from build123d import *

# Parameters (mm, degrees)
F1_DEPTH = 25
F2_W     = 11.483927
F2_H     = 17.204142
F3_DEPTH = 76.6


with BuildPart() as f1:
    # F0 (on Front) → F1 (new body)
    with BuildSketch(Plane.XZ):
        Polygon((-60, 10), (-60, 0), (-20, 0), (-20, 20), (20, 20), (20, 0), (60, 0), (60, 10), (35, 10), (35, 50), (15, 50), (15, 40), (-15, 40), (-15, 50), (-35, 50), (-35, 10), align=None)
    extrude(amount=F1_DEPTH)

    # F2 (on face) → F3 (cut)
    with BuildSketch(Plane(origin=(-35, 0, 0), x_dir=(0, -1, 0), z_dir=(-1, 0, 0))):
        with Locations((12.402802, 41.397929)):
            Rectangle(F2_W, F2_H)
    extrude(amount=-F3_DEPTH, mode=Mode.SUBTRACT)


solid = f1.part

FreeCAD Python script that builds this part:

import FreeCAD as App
import Part
import Sketcher

V = App.Vector


def add_polygon(sketch, points):
    """Adds a closed chain of lines whose ends are joined by coincident constraints."""
    first, n = sketch.GeometryCount, len(points)
    for a, b in zip(points, points[1:] + points[:1]):
        sketch.addGeometry(Part.LineSegment(App.Vector(*a, 0), App.Vector(*b, 0)), False)
    for i in range(n):
        sketch.addConstraint(Sketcher.Constraint("Coincident", first + i, 2, first + (i + 1) % n, 1))

doc = App.newDocument("Part")
params = doc.addObject("Spreadsheet::Sheet", "Params")
for row, (alias, value) in enumerate([
    ("sketch1_width", "40 mm"),
    ("sketch1_width2", "25 mm"),
    ("sketch1_width3", "20 mm"),
    ("sketch1_height", "10 mm"),
    ("pad1_length", "25 mm"),
    ("pocket1_length", "76.6 mm"),
], start=1):
    params.set(f"A{row}", alias)
    params.set(f"B{row}", "=" + value)
    params.setAlias(f"B{row}", alias)

body = doc.addObject("PartDesign::Body", "Body")

sketch1 = body.newObject("Sketcher::SketchObject", "Sketch")
sketch1.AttachmentSupport = (doc.getObject("XZ_Plane"), [""])
sketch1.MapMode = "FlatFace"
add_polygon(sketch1, [(-60, 10), (-60, 0), (-20, 0), (-20, 20), (20, 20), (20, 0), (60, 0), (60, 10), (35, 10), (35, 50), (15, 50), (15, 40), (-15, 40), (-15, 50), (-35, 50), (-35, 10)])
sketch1.addConstraint(Sketcher.Constraint("Vertical", 0))
sketch1.addConstraint(Sketcher.Constraint("Horizontal", 1))
sketch1.addConstraint(Sketcher.Constraint("Vertical", 2))
sketch1.addConstraint(Sketcher.Constraint("Horizontal", 3))
sketch1.addConstraint(Sketcher.Constraint("Vertical", 4))
sketch1.addConstraint(Sketcher.Constraint("Horizontal", 5))
sketch1.addConstraint(Sketcher.Constraint("Vertical", 6))
sketch1.addConstraint(Sketcher.Constraint("Horizontal", 7))
sketch1.addConstraint(Sketcher.Constraint("Vertical", 8))
sketch1.addConstraint(Sketcher.Constraint("Horizontal", 9))
sketch1.addConstraint(Sketcher.Constraint("Vertical", 10))
sketch1.addConstraint(Sketcher.Constraint("Horizontal", 11))
sketch1.addConstraint(Sketcher.Constraint("Vertical", 12))
sketch1.addConstraint(Sketcher.Constraint("Horizontal", 13))
sketch1.addConstraint(Sketcher.Constraint("Vertical", 14))
sketch1.addConstraint(Sketcher.Constraint("Horizontal", 15))
sketch1.addConstraint(Sketcher.Constraint("Symmetric", 1, 2, 4, 2, -1, 1))
sketch1.addConstraint(Sketcher.Constraint("Symmetric", 0, 2, 5, 2, -2))
sketch1.addConstraint(Sketcher.Constraint("Symmetric", 9, 2, 12, 2, -2))
sketch1.addConstraint(Sketcher.Constraint("Symmetric", 7, 2, 14, 2, -2))
sketch1.addConstraint(Sketcher.Constraint("Equal", 1, 3))
sketch1.addConstraint(Sketcher.Constraint("Equal", 13, 2))
sketch1.addConstraint(Sketcher.Constraint("Equal", 5, 8))
sketch1.addConstraint(Sketcher.Constraint("Equal", 6, 10))
sketch1.addConstraint(Sketcher.Constraint("DistanceX", 1, 1, 1, 2, 40.0))
sketch1.addConstraint(Sketcher.Constraint("DistanceX", 7, 2, 7, 1, 25.0))
sketch1.addConstraint(Sketcher.Constraint("DistanceX", 9, 2, 9, 1, 20.0))
sketch1.addConstraint(Sketcher.Constraint("DistanceY", 0, 2, 0, 1, 10.0))
sketch1.setExpression("Constraints[40]", "Params.sketch1_width")
sketch1.setExpression("Constraints[41]", "Params.sketch1_width2")
sketch1.setExpression("Constraints[42]", "Params.sketch1_width3")
sketch1.setExpression("Constraints[43]", "Params.sketch1_height")
pad1 = body.newObject("PartDesign::Pad", "Pad")
pad1.Profile = sketch1
pad1.setExpression("Length", "Params.pad1_length")

sketch2 = body.newObject("Sketcher::SketchObject", "Sketch001")
sketch2.AttachmentSupport = (doc.getObject("YZ_Plane"), [""])
sketch2.MapMode = "FlatFace"
sketch2.AttachmentOffset = App.Placement(V(0, 0, -35), App.Rotation())
add_polygon(sketch2, [(-7, 50), (-7, 33), (-18, 33), (-18, 50)])
sketch2.addConstraint(Sketcher.Constraint("Vertical", 0))
sketch2.addConstraint(Sketcher.Constraint("Horizontal", 1))
sketch2.addConstraint(Sketcher.Constraint("Vertical", 2))
sketch2.addConstraint(Sketcher.Constraint("Horizontal", 3))
sketch2.addConstraint(Sketcher.Constraint("DistanceY", -1, 1, 2, 2, 50.0))
sketch2.addConstraint(Sketcher.Constraint("DistanceY", 0, 2, 0, 1, 17.204142))
sketch2.addConstraint(Sketcher.Constraint("DistanceX", 1, 2, 1, 1, 11.483927))
sketch2.addConstraint(Sketcher.Constraint("DistanceX", 0, 2, -1, 1, 6.660838))
pocket1 = body.newObject("PartDesign::Pocket", "Pocket")
pocket1.Profile = sketch2
pocket1.setExpression("Length", "Params.pocket1_length")
pocket1.Reversed = True

doc.recompute()
